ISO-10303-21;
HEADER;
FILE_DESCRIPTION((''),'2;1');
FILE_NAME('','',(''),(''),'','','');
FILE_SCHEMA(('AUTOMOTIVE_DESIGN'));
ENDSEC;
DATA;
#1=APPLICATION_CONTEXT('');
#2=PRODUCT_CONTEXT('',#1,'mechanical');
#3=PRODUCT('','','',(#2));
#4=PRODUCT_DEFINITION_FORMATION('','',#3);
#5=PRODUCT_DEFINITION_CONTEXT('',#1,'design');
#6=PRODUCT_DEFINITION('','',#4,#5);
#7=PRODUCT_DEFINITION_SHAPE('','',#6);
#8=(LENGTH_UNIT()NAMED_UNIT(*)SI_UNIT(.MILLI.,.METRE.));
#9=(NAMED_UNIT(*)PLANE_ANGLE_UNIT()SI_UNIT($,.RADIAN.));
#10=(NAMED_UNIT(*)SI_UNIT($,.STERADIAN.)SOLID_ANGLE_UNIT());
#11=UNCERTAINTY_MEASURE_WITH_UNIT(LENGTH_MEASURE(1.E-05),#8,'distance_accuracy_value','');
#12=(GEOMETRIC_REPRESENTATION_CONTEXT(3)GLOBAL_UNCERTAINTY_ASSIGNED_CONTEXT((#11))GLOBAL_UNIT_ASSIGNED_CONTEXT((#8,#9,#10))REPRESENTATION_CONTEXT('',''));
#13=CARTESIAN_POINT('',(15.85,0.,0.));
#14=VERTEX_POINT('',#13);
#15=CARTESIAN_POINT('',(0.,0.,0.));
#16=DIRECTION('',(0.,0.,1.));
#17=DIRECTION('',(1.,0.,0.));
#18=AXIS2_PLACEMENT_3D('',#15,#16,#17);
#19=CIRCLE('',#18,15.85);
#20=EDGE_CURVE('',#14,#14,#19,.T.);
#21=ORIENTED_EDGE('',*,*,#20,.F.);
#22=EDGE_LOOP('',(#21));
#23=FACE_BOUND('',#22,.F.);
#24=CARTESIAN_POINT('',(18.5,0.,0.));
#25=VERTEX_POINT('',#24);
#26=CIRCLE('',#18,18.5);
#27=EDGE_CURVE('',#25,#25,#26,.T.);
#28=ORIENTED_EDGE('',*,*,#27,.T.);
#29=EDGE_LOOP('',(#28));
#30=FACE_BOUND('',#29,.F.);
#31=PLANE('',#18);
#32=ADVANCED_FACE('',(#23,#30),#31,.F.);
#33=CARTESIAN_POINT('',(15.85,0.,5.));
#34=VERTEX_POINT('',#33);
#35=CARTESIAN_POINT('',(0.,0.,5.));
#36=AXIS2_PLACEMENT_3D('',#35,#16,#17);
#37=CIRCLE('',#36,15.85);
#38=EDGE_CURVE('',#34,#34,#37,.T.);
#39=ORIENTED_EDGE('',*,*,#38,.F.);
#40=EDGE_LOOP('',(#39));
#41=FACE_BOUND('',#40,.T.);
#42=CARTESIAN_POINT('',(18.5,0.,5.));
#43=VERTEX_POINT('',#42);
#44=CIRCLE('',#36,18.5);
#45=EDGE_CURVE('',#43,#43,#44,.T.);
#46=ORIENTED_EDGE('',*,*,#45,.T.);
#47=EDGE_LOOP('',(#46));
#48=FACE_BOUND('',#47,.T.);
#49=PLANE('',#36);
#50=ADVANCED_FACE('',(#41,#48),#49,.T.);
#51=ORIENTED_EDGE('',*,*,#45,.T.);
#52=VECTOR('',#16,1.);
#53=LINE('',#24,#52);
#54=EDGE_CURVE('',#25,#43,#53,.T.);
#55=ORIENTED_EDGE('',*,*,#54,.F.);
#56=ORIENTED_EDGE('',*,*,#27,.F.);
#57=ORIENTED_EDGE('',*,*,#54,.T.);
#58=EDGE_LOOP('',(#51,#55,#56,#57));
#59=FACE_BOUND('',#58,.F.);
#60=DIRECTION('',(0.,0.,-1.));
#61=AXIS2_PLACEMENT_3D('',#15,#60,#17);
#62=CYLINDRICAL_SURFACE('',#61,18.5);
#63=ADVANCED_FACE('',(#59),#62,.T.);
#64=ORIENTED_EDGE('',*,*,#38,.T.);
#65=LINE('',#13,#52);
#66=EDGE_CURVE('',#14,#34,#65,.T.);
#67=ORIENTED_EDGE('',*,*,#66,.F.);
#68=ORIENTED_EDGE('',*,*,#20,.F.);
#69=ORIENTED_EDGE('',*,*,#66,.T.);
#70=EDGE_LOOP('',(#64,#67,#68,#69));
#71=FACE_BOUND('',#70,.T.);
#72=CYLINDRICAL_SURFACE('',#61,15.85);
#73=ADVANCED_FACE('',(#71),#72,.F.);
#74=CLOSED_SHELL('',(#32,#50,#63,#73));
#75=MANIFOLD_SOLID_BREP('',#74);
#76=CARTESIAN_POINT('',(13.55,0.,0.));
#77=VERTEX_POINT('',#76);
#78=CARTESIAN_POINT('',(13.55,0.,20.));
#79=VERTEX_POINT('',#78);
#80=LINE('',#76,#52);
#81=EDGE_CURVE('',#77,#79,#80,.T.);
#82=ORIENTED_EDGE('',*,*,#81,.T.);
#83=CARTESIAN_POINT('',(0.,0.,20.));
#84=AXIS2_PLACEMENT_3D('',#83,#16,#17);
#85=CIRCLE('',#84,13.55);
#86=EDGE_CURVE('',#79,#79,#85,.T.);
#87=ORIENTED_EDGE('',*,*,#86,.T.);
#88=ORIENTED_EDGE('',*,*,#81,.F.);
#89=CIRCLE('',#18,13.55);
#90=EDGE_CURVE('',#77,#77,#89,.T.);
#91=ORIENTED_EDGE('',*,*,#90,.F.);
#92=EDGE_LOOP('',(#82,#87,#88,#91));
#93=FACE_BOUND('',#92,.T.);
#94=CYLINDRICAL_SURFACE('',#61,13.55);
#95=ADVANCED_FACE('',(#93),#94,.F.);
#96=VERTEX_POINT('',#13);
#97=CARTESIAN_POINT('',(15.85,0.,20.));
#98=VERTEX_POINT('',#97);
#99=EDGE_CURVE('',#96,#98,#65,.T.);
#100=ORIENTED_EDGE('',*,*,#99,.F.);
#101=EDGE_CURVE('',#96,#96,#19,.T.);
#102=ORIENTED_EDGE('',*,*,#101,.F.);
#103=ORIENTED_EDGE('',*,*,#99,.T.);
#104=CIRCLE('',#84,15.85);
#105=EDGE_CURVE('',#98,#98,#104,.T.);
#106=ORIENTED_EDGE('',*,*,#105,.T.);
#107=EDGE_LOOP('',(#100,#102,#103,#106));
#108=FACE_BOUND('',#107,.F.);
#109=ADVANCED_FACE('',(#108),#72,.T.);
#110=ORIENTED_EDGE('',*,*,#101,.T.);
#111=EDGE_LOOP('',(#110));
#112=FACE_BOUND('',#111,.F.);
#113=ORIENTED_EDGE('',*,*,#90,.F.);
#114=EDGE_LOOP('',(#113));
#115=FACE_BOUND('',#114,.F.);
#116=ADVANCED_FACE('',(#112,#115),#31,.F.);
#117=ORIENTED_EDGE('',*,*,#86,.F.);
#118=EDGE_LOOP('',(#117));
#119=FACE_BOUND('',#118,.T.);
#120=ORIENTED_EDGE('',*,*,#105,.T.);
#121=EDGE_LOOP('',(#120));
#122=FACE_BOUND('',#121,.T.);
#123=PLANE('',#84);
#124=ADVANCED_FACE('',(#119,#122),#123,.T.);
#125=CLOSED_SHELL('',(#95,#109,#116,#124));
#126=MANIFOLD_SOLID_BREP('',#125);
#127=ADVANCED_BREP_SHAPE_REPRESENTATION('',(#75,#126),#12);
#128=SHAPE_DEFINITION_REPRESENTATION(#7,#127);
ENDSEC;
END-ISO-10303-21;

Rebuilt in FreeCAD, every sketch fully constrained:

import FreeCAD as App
import Part
import Sketcher

V = App.Vector
Q = App.Units.Quantity

doc = App.newDocument("Part")
params = doc.addObject("Spreadsheet::Sheet", "Params")
for row, (alias, value) in enumerate([
    ("sketch1_diameter", "31.7 mm"),
    ("sketch1_diameter2", "27.1 mm"),
    ("pad1_length", "20 mm"),
    ("sketch2_diameter", "37 mm"),
    ("sketch2_diameter2", "31.7 mm"),
    ("pad2_length", "5 mm"),
], start=1):
    params.set(f"A{row}", alias)
    params.set(f"B{row}", "=" + value)
    params.setAlias(f"B{row}", alias)

body = doc.addObject("PartDesign::Body", "Body")

# Sketch on XY plane
sketch1 = doc.addObject("Sketcher::SketchObject", "Sketch")
body.addObject(sketch1)
sketch1.AttachmentSupport = (doc.XY_Plane, [""])
sketch1.MapMode = "FlatFace"
sketch1.addGeometry(Part.Circle(V(0, 0, 0), V(0, 0, 1), 16), False)
sketch1.addGeometry(Part.Circle(V(0, 0, 0), V(0, 0, 1), 14), False)
sketch1.addConstraint(Sketcher.Constraint("Coincident", 0, 3, -1, 1))
sketch1.addConstraint(Sketcher.Constraint("Coincident", 1, 3, -1, 1))
sketch1.addConstraint(Sketcher.Constraint("Diameter", 0, Q("31.7 mm")))
sketch1.addConstraint(Sketcher.Constraint("Diameter", 1, Q("27.1 mm")))
sketch1.setExpression("Constraints[2]", "Params.sketch1_diameter")
sketch1.setExpression("Constraints[3]", "Params.sketch1_diameter2")
pad1 = doc.addObject("PartDesign::Pad", "Pad")
body.addObject(pad1)
pad1.Profile = sketch1
pad1.setExpression("Length", "Params.pad1_length")
body2 = doc.addObject("PartDesign::Body", "Body001")

# Sketch on XY plane
sketch2 = doc.addObject("Sketcher::SketchObject", "Sketch001")
body2.addObject(sketch2)
sketch2.AttachmentSupport = (doc.getObject("XY_Plane001"), [""])
sketch2.MapMode = "FlatFace"
sketch2.addGeometry(Part.Circle(V(0, 0, 0), V(0, 0, 1), 18), False)
sketch2.addGeometry(Part.Circle(V(0, 0, 0), V(0, 0, 1), 16), False)
sketch2.addConstraint(Sketcher.Constraint("Coincident", 0, 3, -1, 1))
sketch2.addConstraint(Sketcher.Constraint("Coincident", 1, 3, -1, 1))
sketch2.addConstraint(Sketcher.Constraint("Diameter", 0, Q("37 mm")))
sketch2.addConstraint(Sketcher.Constraint("Diameter", 1, Q("31.7 mm")))
sketch2.setExpression("Constraints[2]", "Params.sketch2_diameter")
sketch2.setExpression("Constraints[3]", "Params.sketch2_diameter2")
pad2 = doc.addObject("PartDesign::Pad", "Pad001")
body2.addObject(pad2)
pad2.Profile = sketch2
pad2.setExpression("Length", "Params.pad2_length")

doc.recompute()
